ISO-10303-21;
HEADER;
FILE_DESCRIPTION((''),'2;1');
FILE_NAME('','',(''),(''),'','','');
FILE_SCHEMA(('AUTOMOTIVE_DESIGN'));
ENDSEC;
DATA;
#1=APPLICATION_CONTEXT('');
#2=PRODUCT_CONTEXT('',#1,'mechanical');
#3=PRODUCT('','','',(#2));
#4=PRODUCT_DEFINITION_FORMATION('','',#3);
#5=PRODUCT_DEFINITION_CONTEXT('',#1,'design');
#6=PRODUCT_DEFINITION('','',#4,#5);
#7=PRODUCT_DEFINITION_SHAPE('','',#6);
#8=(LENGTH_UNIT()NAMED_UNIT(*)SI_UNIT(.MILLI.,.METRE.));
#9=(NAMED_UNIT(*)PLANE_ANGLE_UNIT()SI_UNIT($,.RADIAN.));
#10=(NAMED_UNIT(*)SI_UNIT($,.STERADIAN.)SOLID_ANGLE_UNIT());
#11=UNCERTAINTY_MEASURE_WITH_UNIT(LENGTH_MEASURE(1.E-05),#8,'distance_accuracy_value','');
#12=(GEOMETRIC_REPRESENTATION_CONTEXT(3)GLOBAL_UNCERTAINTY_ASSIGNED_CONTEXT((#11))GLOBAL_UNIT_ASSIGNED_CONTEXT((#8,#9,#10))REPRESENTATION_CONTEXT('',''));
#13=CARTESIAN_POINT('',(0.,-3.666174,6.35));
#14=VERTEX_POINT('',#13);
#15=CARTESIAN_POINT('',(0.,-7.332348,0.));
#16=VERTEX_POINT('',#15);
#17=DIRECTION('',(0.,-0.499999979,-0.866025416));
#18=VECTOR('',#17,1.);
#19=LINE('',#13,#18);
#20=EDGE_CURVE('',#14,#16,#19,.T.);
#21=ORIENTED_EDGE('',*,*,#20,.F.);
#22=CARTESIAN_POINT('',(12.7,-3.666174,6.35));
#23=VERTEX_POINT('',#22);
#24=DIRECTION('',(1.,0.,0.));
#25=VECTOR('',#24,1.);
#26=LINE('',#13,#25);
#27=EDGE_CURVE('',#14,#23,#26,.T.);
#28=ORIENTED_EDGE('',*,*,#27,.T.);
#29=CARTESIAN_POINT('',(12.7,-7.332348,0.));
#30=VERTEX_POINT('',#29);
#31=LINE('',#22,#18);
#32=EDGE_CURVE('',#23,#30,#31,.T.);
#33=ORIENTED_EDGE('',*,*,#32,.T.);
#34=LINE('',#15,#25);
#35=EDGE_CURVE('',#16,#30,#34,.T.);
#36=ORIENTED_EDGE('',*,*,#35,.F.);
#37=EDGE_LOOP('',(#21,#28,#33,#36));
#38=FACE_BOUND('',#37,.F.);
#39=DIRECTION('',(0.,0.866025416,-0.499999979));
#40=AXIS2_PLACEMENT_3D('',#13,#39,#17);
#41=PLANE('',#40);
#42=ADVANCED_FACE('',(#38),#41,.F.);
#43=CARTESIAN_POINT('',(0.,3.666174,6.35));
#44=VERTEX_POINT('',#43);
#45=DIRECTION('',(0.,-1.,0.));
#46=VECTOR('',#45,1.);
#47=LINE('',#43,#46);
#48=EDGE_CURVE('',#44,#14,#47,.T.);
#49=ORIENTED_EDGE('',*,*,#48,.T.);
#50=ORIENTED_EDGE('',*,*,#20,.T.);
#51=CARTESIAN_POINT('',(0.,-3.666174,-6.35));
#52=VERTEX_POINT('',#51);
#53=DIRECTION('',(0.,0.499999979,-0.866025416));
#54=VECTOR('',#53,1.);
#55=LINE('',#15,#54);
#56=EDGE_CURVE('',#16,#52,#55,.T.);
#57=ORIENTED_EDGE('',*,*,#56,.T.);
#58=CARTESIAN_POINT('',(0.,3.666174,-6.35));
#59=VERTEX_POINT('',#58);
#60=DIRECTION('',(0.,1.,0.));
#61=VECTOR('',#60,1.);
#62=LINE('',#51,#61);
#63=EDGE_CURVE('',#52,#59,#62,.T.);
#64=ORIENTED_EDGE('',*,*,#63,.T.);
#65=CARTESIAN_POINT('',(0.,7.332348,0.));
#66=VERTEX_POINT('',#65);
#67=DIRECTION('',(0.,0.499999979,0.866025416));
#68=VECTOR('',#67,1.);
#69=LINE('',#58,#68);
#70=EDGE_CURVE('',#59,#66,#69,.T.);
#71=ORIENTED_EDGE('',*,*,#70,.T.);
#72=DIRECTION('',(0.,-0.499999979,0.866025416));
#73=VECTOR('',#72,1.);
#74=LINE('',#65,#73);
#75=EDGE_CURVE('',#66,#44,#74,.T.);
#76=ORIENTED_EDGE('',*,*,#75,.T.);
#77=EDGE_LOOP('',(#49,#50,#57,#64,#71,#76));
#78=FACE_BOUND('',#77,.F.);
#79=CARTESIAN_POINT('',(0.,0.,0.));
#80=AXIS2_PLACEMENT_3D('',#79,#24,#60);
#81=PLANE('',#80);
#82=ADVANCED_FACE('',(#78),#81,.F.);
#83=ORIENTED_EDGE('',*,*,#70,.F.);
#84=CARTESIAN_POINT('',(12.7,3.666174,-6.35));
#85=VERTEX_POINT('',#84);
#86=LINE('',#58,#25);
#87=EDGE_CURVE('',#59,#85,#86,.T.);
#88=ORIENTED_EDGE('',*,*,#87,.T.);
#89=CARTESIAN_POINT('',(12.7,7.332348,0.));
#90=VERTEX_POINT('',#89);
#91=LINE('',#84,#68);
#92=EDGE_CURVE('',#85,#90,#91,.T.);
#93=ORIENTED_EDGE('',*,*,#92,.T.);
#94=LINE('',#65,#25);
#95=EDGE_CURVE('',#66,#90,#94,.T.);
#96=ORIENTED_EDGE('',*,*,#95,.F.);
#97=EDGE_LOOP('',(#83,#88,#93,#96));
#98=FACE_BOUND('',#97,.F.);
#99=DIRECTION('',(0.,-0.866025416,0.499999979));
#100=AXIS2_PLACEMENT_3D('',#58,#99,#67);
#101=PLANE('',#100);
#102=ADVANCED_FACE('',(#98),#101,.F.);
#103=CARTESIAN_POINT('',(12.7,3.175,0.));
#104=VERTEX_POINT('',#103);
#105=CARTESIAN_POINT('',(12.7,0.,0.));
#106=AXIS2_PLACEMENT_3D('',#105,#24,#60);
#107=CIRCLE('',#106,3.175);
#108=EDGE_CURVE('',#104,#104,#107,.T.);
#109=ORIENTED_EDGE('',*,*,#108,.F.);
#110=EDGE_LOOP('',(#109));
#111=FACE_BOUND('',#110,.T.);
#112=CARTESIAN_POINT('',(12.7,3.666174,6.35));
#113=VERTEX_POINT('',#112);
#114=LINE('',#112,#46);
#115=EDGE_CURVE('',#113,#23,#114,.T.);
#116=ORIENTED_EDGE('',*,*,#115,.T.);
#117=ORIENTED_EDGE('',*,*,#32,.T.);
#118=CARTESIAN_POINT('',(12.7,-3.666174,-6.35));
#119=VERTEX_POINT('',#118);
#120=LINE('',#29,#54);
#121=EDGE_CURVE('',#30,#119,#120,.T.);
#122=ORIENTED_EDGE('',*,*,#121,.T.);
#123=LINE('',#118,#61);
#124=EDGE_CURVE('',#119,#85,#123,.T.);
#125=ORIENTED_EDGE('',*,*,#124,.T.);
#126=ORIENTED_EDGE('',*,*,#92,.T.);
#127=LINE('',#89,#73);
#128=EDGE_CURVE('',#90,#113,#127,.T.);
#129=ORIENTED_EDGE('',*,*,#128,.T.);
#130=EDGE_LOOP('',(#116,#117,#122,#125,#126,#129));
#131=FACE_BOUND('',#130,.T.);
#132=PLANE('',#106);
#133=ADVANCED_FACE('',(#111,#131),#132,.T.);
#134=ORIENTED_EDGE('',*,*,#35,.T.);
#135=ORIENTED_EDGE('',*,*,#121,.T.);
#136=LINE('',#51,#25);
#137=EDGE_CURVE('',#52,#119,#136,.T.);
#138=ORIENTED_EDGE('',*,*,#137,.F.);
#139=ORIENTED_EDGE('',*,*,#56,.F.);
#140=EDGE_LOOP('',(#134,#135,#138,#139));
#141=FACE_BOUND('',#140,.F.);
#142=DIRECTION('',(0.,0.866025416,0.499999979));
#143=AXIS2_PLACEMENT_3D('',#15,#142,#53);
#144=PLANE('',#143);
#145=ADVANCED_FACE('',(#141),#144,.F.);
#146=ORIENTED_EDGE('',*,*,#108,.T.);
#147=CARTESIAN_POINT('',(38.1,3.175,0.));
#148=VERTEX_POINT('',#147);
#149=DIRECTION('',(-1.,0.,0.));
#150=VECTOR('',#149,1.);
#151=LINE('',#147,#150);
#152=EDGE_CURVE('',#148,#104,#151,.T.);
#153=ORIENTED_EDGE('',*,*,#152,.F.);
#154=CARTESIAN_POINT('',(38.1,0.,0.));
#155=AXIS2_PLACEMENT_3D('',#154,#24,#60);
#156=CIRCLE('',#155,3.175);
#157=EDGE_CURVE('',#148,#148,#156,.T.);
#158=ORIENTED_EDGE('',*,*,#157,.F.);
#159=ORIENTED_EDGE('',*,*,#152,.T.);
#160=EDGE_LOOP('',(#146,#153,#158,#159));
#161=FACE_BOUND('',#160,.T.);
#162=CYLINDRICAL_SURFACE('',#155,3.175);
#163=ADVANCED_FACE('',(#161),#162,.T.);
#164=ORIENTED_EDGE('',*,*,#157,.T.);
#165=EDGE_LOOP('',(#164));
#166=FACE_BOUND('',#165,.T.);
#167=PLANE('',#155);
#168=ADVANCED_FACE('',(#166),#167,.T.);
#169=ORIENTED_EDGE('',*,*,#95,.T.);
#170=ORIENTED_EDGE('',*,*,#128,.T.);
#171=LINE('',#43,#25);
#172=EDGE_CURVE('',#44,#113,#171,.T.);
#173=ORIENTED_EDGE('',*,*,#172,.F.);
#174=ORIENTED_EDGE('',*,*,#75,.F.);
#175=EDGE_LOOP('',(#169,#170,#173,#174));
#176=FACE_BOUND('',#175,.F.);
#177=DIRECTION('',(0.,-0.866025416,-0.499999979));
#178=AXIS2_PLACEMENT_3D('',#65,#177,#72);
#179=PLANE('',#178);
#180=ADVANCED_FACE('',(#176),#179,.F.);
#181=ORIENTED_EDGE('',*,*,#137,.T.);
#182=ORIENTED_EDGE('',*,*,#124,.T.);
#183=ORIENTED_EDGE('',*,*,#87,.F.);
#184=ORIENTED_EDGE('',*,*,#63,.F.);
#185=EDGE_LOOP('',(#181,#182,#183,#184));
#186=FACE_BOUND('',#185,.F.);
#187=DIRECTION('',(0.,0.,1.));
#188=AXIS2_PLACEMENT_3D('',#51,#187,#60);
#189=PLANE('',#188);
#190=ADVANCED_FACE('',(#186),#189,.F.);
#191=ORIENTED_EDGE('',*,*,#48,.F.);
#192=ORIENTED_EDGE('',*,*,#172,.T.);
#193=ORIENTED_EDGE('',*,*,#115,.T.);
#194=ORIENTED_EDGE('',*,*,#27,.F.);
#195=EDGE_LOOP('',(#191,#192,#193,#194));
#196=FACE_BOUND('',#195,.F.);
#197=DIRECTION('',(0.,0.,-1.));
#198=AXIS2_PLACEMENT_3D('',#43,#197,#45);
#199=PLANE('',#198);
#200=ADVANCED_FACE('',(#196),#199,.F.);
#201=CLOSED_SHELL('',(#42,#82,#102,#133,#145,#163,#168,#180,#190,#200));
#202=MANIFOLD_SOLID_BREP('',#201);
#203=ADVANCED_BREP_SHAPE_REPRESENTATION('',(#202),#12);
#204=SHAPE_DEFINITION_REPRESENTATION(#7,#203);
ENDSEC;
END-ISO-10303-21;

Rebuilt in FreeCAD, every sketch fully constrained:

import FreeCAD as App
import Part
import Sketcher
Q = App.Units.Quantity


def add_polygon(sketch, points):
    """Adds a closed chain of lines whose ends are joined by coincident constraints."""
    first, n = sketch.GeometryCount, len(points)
    for a, b in zip(points, points[1:] + points[:1]):
        sketch.addGeometry(Part.LineSegment(App.Vector(*a, 0), App.Vector(*b, 0)), False)
    for i in range(n):
        sketch.addConstraint(Sketcher.Constraint("Coincident", first + i, 2, first + (i + 1) % n, 1))

doc = App.newDocument("Part")
body = doc.addObject("PartDesign::Body", "Body")

sketch1 = body.newObject("Sketcher::SketchObject", "Sketch")
sketch1.AttachmentSupport = (doc.getObject("YZ_Plane"), [""])
sketch1.MapMode = "FlatFace"
add_polygon(sketch1, [(7, 0), (4, 6), (-4, 6), (-7, 0), (-4, -6), (4, -6)])
sketch1.addConstraint(Sketcher.Constraint("Horizontal", 1))
sketch1.addConstraint(Sketcher.Constraint("Horizontal", 4))
sketch1.addConstraint(Sketcher.Constraint("Symmetric", 0, 2, 3, 2, -1, 1))
sketch1.addConstraint(Sketcher.Constraint("Symmetric", 2, 2, 5, 2, -1, 1))
sketch1.addConstraint(Sketcher.Constraint("PointOnObject", 2, 2, -1))
sketch1.addConstraint(Sketcher.Constraint("Parallel", 2, 5))
sketch1.addConstraint(Sketcher.Constraint("Vertical", 1, 2, 3, 2))
sketch1.addConstraint(Sketcher.Constraint("Angle", 0, Q("119.999999 deg")))
sketch1.addConstraint(Sketcher.Constraint("DistanceY", 3, 2, 1, 2, Q("0.5 in")))
sketch1.addConstraint(Sketcher.Constraint("DistanceX", 1, 2, 1, 1, 7.332348))
pad1 = body.newObject("PartDesign::Pad", "Pad")
pad1.Profile = sketch1
pad1.Length = Q("1.5 in")

sketch2 = body.newObject("Sketcher::SketchObject", "Sketch001")
sketch2.AttachmentSupport = (doc.getObject("YZ_Plane"), [""])
sketch2.MapMode = "FlatFace"
sketch2.AttachmentOffset = App.Placement(App.Vector(0, 0, 1.5 * 25.4), App.Rotation())
add_polygon(sketch2, [(-3.7, -6.3), (3.7, -6.3), (7.3, 0), (3.7, 6.3), (-3.7, 6.3), (-7.3, 0)])
sketch2.addGeometry(Part.Circle(App.Vector(0, 0, 0), App.Vector(0, 0, 1), 3.2), False)
sketch2.addConstraint(Sketcher.Constraint("Horizontal", 0))
sketch2.addConstraint(Sketcher.Constraint("Horizontal", 3))
sketch2.addConstraint(Sketcher.Constraint("Coincident", 6, 3, -1, 1))
sketch2.addConstraint(Sketcher.Constraint("Symmetric", 0, 2, 3, 2, -1, 1))
sketch2.addConstraint(Sketcher.Constraint("Symmetric", 1, 2, 4, 2, -1, 1))
sketch2.addConstraint(Sketcher.Constraint("PointOnObject", 1, 2, -1))
sketch2.addConstraint(Sketcher.Constraint("Parallel", 2, 5))
sketch2.addConstraint(Sketcher.Constraint("Vertical", 0, 2, 2, 2))
sketch2.addConstraint(Sketcher.Constraint("Diameter", 6, Q("0.25 in")))
sketch2.addConstraint(Sketcher.Constraint("Angle", 1, Q("60.000001 deg")))
sketch2.addConstraint(Sketcher.Constraint("DistanceY", 0, 2, 2, 2, Q("0.5 in")))
sketch2.addConstraint(Sketcher.Constraint("DistanceX", 0, 1, 0, 2, 7.332348))
pocket1 = body.newObject("PartDesign::Pocket", "Pocket")
pocket1.Profile = sketch2
pocket1.Length = Q("1 in")

doc.recompute()
